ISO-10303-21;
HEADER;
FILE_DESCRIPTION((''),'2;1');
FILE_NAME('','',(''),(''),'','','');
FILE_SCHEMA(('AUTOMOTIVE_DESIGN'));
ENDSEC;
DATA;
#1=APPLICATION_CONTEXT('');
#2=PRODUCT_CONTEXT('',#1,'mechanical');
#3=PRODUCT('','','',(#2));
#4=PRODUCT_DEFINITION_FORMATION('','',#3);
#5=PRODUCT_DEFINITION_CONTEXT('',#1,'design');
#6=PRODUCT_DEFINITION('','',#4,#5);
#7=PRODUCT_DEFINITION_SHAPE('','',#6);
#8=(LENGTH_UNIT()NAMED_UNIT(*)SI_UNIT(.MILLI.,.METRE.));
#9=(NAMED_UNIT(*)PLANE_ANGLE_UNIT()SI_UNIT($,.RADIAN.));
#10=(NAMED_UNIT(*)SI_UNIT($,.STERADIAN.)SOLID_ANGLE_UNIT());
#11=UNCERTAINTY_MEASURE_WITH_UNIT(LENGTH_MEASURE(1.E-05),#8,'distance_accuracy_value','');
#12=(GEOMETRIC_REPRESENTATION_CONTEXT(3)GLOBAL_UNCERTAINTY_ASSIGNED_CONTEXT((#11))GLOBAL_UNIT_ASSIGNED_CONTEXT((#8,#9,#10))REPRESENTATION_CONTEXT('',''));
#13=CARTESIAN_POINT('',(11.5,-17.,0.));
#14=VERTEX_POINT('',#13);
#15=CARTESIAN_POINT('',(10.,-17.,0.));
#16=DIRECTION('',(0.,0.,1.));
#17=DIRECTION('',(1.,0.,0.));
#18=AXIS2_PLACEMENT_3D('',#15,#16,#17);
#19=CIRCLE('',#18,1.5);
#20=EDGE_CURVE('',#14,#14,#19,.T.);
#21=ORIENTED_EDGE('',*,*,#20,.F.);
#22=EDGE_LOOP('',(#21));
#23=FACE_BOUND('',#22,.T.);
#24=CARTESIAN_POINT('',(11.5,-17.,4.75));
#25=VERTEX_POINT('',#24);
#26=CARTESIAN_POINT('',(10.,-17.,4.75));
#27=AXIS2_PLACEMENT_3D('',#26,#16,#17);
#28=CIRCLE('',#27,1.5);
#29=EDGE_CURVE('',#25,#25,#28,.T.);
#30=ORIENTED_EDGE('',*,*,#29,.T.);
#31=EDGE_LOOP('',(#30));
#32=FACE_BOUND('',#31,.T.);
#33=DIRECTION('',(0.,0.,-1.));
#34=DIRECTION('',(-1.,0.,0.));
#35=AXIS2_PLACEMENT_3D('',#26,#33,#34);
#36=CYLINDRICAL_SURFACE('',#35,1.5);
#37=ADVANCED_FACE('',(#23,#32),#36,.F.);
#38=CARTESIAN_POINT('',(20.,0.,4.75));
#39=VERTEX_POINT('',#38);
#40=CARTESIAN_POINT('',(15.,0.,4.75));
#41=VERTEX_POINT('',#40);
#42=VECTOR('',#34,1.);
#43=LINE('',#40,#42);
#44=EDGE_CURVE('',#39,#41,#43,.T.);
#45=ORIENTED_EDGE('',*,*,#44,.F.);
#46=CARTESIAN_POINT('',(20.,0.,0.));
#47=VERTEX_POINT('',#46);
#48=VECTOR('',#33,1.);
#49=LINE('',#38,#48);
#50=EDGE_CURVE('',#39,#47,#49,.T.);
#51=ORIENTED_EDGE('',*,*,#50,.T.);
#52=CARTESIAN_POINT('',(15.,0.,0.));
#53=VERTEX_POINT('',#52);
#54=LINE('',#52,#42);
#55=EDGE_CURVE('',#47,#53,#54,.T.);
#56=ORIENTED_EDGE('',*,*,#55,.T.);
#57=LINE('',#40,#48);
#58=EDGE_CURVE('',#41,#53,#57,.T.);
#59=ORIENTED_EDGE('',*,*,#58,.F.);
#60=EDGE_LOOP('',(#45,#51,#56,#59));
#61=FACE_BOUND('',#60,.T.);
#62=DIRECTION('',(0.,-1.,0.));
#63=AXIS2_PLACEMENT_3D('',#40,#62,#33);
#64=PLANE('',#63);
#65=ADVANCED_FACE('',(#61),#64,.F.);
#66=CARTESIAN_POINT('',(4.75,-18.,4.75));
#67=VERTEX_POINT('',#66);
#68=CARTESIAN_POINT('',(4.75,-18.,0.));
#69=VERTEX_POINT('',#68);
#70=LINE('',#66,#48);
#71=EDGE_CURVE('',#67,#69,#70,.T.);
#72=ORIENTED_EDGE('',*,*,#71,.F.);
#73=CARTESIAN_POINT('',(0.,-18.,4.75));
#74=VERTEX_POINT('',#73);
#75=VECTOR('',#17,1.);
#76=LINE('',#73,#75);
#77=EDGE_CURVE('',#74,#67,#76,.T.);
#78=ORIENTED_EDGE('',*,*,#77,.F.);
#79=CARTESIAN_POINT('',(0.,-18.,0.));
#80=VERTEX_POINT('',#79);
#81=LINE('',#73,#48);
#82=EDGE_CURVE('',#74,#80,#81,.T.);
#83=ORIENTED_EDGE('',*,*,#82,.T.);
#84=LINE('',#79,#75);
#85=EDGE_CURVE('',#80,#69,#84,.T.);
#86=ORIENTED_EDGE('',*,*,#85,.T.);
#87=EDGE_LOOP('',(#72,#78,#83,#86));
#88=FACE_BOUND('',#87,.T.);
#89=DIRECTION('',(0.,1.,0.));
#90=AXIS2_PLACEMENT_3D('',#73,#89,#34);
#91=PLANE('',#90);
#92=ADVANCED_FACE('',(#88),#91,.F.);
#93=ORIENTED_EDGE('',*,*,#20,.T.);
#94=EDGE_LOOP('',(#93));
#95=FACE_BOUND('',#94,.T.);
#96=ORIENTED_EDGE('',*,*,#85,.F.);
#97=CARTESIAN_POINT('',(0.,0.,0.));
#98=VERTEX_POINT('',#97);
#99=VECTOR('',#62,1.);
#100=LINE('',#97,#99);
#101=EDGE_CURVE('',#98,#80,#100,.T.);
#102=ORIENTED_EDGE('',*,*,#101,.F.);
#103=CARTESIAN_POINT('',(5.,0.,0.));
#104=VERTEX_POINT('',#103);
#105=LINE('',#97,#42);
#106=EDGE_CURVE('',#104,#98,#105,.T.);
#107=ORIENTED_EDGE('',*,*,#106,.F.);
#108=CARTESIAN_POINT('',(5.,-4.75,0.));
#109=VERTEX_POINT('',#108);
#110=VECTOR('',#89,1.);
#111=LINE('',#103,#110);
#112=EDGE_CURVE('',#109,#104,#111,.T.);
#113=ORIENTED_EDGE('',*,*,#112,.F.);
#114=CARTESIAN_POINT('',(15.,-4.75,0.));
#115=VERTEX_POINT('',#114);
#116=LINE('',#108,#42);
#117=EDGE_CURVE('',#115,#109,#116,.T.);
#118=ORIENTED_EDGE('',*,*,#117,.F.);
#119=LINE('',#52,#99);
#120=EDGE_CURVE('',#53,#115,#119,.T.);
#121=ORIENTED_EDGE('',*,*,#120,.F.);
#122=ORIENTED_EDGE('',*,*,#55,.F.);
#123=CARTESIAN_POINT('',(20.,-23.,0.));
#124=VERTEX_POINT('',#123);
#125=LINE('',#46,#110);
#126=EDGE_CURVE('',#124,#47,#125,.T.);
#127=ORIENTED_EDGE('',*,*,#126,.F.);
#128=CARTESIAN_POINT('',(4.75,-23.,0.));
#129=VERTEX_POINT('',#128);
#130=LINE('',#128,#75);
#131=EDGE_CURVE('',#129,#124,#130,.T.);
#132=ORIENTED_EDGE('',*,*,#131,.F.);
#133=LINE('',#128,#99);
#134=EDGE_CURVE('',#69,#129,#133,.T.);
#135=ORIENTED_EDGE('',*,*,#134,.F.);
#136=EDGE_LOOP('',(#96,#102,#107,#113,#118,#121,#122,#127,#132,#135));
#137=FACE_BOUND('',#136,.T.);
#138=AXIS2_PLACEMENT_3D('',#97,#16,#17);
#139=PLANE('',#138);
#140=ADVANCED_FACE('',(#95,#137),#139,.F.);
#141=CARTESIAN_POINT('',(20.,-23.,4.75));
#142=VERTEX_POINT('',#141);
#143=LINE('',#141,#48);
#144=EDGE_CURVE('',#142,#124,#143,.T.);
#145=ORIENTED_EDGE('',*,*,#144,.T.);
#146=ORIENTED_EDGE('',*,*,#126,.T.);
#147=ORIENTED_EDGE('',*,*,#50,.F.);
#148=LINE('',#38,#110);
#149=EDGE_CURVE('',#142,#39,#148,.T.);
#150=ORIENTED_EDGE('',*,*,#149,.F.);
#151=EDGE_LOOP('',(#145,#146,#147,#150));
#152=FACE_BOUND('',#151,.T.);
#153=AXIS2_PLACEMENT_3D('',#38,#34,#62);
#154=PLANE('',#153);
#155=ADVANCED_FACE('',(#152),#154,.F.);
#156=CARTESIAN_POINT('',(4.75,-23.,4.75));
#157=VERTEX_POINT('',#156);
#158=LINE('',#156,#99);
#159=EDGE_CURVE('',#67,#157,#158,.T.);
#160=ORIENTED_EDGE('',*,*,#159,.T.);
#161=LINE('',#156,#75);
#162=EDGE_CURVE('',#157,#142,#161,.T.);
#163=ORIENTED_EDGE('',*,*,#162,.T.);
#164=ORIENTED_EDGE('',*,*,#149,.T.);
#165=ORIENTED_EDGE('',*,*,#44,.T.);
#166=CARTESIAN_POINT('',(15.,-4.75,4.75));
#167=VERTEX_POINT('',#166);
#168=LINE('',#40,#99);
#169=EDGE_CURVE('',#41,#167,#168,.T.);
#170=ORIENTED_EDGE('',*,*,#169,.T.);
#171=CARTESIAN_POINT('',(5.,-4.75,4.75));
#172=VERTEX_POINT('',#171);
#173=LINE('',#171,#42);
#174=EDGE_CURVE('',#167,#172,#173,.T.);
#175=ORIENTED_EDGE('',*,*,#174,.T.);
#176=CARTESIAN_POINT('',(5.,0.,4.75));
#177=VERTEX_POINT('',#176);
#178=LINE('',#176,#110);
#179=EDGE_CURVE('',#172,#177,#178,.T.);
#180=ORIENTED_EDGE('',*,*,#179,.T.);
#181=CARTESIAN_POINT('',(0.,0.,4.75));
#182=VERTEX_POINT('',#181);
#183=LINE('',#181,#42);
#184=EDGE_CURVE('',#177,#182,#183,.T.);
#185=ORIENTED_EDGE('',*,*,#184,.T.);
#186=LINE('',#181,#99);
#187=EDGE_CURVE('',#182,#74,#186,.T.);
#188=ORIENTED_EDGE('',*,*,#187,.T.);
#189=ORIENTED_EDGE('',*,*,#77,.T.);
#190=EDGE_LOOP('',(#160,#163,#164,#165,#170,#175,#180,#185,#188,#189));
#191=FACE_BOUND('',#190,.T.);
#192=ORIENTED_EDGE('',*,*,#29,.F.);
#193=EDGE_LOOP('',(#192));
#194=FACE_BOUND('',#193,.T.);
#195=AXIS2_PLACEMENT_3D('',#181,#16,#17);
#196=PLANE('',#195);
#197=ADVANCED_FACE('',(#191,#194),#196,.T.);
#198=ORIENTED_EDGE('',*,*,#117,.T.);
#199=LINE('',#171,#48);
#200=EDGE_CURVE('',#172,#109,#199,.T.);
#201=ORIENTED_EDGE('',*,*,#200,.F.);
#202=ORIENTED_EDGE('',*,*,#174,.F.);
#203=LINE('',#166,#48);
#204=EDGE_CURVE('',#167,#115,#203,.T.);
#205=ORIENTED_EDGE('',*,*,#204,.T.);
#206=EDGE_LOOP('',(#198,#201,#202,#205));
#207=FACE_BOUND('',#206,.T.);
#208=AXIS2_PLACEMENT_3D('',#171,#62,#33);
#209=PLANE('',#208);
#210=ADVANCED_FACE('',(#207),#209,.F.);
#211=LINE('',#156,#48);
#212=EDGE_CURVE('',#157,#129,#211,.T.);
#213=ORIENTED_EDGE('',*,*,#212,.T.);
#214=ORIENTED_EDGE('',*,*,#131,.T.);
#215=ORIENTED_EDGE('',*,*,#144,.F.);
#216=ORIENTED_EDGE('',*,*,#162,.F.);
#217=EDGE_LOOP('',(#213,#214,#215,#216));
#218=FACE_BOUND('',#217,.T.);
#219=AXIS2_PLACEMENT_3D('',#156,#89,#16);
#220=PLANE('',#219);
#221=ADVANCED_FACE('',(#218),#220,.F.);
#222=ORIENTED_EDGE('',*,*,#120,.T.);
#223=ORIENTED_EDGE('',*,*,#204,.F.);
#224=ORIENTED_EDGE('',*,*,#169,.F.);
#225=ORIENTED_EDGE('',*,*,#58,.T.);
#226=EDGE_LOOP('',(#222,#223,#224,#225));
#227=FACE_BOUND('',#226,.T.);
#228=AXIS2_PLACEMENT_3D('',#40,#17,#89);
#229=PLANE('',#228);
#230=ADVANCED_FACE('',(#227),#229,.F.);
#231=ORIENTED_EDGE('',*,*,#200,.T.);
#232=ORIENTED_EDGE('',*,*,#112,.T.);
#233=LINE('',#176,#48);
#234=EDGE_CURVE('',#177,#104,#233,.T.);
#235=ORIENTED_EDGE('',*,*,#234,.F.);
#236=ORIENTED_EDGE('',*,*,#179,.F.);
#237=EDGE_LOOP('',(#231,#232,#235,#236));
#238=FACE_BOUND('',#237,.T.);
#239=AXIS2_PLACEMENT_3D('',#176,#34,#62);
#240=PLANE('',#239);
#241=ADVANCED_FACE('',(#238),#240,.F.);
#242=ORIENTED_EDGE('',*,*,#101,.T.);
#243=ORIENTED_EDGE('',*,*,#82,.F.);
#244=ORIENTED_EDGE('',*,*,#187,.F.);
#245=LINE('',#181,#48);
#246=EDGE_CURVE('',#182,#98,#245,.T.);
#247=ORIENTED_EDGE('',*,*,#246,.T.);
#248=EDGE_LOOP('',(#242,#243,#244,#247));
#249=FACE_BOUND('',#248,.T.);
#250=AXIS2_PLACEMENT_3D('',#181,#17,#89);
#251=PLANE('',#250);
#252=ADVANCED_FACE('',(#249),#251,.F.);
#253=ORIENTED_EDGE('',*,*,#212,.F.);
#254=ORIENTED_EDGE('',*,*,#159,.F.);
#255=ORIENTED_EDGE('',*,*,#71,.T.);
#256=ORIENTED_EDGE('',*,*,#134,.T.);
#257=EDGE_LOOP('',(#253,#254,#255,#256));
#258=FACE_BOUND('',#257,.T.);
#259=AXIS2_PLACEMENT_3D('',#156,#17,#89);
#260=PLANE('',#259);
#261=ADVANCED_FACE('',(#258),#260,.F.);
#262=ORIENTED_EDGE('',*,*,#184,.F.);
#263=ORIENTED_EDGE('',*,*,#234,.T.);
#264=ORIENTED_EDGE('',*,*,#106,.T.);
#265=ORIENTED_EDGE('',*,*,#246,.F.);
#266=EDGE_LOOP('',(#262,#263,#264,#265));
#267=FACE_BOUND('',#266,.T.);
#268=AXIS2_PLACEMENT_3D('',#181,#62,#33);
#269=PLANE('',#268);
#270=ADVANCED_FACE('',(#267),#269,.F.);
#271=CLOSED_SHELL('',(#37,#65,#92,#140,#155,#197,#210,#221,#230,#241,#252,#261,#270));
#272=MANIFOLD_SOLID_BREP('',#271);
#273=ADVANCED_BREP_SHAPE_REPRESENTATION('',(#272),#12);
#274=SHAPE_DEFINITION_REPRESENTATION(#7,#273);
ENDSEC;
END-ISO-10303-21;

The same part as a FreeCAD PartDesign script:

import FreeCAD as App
import Part
import Sketcher

doc = App.newDocument("Part")
body = doc.addObject("PartDesign::Body", "Body")

# Sketch on XY plane
sketch1 = doc.addObject("Sketcher::SketchObject", "Sketch")
body.addObject(sketch1)
sketch1.AttachmentSupport = (doc.XY_Plane, [""])
sketch1.MapMode = "FlatFace"
sketch1.addGeometry(Part.LineSegment(App.Vector(20, 0, 0), App.Vector(15, 0, 0)), False)
sketch1.addGeometry(Part.LineSegment(App.Vector(15, 0, 0), App.Vector(15, -4.8, 0)), False)
sketch1.addGeometry(Part.LineSegment(App.Vector(15, -4.8, 0), App.Vector(5, -4.8, 0)), False)
sketch1.addGeometry(Part.LineSegment(App.Vector(5, -4.8, 0), App.Vector(5, 0, 0)), False)
sketch1.addGeometry(Part.LineSegment(App.Vector(5, 0, 0), App.Vector(0, 0, 0)), False)
sketch1.addGeometry(Part.LineSegment(App.Vector(0, 0, 0), App.Vector(0, -18, 0)), False)
sketch1.addGeometry(Part.LineSegment(App.Vector(0, -18, 0), App.Vector(4.8, -18, 0)), False)
sketch1.addGeometry(Part.LineSegment(App.Vector(4.8, -18, 0), App.Vector(4.8, -23, 0)), False)
sketch1.addGeometry(Part.LineSegment(App.Vector(4.8, -23, 0), App.Vector(20, -23, 0)), False)
sketch1.addGeometry(Part.LineSegment(App.Vector(20, -23, 0), App.Vector(20, 0, 0)), False)
sketch1.addGeometry(Part.Circle(App.Vector(10, -17, 0), App.Vector(0, 0, 1), 1.5), False)
sketch1.addConstraint(Sketcher.Constraint("Coincident", 0, 2, 1, 1))
sketch1.addConstraint(Sketcher.Constraint("Coincident", 1, 2, 2, 1))
sketch1.addConstraint(Sketcher.Constraint("Coincident", 2, 2, 3, 1))
sketch1.addConstraint(Sketcher.Constraint("Coincident", 3, 2, 4, 1))
sketch1.addConstraint(Sketcher.Constraint("Coincident", 4, 2, 5, 1))
sketch1.addConstraint(Sketcher.Constraint("Coincident", 5, 2, 6, 1))
sketch1.addConstraint(Sketcher.Constraint("Coincident", 6, 2, 7, 1))
sketch1.addConstraint(Sketcher.Constraint("Coincident", 7, 2, 8, 1))
sketch1.addConstraint(Sketcher.Constraint("Coincident", 8, 2, 9, 1))
sketch1.addConstraint(Sketcher.Constraint("Coincident", 9, 2, 0, 1))
sketch1.addConstraint(Sketcher.Constraint("Horizontal", 0))
sketch1.addConstraint(Sketcher.Constraint("Vertical", 1))
sketch1.addConstraint(Sketcher.Constraint("Horizontal", 2))
sketch1.addConstraint(Sketcher.Constraint("Vertical", 3))
sketch1.addConstraint(Sketcher.Constraint("Horizontal", 4))
sketch1.addConstraint(Sketcher.Constraint("Vertical", 5))
sketch1.addConstraint(Sketcher.Constraint("Horizontal", 6))
sketch1.addConstraint(Sketcher.Constraint("Vertical", 7))
sketch1.addConstraint(Sketcher.Constraint("Horizontal", 8))
sketch1.addConstraint(Sketcher.Constraint("Vertical", 9))
sketch1.addConstraint(Sketcher.Constraint("Coincident", 4, 2, -1, 1))
sketch1.addConstraint(Sketcher.Constraint("PointOnObject", 0, 2, -1))
sketch1.addConstraint(Sketcher.Constraint("Equal", 0, 4))
sketch1.addConstraint(Sketcher.Constraint("Equal", 6, 1))
sketch1.addConstraint(Sketcher.Constraint("Equal", 4, 7))
sketch1.addConstraint(Sketcher.Constraint("Diameter", 10, 3.0))
sketch1.addConstraint(Sketcher.Constraint("DistanceX", 0, 2, 0, 1, 5.0))
sketch1.addConstraint(Sketcher.Constraint("DistanceX", 2, 2, 2, 1, 10.0))
sketch1.addConstraint(Sketcher.Constraint("DistanceY", 5, 2, 5, 1, 18.0))
sketch1.addConstraint(Sketcher.Constraint("DistanceX", -1, 1, 10, 3, 10.0))
sketch1.addConstraint(Sketcher.Constraint("DistanceY", 10, 3, -1, 1, 17.0))
sketch1.addConstraint(Sketcher.Constraint("DistanceX", 6, 1, 6, 2, 4.75))
pad1 = doc.addObject("PartDesign::Pad", "Pad")
body.addObject(pad1)
pad1.Profile = sketch1
pad1.Length = 4.75

doc.recompute()
